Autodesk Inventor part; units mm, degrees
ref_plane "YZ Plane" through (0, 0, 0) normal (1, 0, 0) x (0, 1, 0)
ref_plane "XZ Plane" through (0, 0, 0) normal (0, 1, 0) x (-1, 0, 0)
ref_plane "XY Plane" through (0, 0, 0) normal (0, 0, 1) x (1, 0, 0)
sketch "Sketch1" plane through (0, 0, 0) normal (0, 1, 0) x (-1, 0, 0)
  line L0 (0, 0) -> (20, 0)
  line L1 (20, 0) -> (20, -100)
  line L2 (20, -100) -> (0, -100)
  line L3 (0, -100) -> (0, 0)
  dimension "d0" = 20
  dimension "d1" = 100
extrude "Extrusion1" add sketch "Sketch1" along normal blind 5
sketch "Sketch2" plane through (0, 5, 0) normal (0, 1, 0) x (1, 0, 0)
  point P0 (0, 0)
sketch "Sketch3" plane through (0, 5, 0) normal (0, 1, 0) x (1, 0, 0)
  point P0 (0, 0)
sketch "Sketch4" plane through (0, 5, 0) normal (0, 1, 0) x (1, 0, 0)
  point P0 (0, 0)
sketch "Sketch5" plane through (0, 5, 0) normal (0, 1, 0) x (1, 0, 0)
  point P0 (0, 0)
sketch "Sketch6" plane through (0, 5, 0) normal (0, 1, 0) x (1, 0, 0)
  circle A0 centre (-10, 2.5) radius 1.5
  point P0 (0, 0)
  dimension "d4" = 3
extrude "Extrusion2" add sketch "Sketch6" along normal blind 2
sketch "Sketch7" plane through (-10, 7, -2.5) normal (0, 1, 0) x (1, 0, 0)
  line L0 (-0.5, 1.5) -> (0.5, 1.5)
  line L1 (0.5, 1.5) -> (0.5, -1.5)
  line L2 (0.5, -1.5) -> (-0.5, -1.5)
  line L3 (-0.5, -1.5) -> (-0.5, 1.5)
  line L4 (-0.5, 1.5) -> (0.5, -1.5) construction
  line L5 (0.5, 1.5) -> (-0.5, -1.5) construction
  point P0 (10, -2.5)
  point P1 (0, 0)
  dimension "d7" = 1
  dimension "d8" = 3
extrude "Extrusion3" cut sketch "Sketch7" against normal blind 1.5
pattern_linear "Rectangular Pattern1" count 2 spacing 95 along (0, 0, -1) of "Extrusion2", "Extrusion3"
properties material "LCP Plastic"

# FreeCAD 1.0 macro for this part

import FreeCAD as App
import Part
import Sketcher
from FreeCAD import Vector
Q = App.Units.Quantity


def add_polygon(sketch, points):
    """Adds a closed chain of lines whose ends are joined by coincident constraints."""
    first, n = sketch.GeometryCount, len(points)
    for a, b in zip(points, points[1:] + points[:1]):
        sketch.addGeometry(Part.LineSegment(App.Vector(*a, 0), App.Vector(*b, 0)), False)
    for i in range(n):
        sketch.addConstraint(Sketcher.Constraint("Coincident", first + i, 2, first + (i + 1) % n, 1))

doc = App.newDocument("Part")
body = doc.addObject("PartDesign::Body", "Body")

# Sketch on XZ plane
sketch1 = body.newObject("Sketcher::SketchObject", "Sketch")
sketch1.AttachmentSupport = (doc.getObject("XZ_Plane"), [""])
sketch1.MapMode = "FlatFace"
add_polygon(sketch1, [(-20, 0), (0, 0), (0, -100), (-20, -100)])  # lines 0-3
sketch1.addConstraint(Sketcher.Constraint("Horizontal", 0))
sketch1.addConstraint(Sketcher.Constraint("Vertical", 1))
sketch1.addConstraint(Sketcher.Constraint("Horizontal", 2))
sketch1.addConstraint(Sketcher.Constraint("Vertical", 3))
sketch1.addConstraint(Sketcher.Constraint("Coincident", 0, 2, -1, 1))
sketch1.addConstraint(Sketcher.Constraint("DistanceX", 0, 1, 0, 2, Q("20 mm")))
sketch1.addConstraint(Sketcher.Constraint("DistanceY", 1, 2, 1, 1, Q("100 mm")))
pad1 = body.newObject("PartDesign::Pad", "Pad")
pad1.Profile = sketch1
pad1.Length = 5
pad1.Reversed = True

# Sketch on XZ plane
sketch2 = body.newObject("Sketcher::SketchObject", "Sketch001")
sketch2.AttachmentSupport = (doc.getObject("XZ_Plane"), [""])
sketch2.MapMode = "FlatFace"
sketch2.AttachmentOffset = App.Placement(Vector(0, 0, -5), App.Rotation())
sketch2.addGeometry(Part.Circle(Vector(-10, -2.5, 0), Vector(0, 0, 1), 1.5), False)
sketch2.addConstraint(Sketcher.Constraint("Diameter", 0, Q("3 mm")))
sketch2.addConstraint(Sketcher.Constraint("DistanceX", 0, 3, -1, 1, Q("10 mm")))
sketch2.addConstraint(Sketcher.Constraint("DistanceY", 0, 3, -1, 1, Q("2.5 mm")))
pad2 = body.newObject("PartDesign::Pad", "Pad001")
pad2.Profile = sketch2
pad2.Length = 2
pad2.Reversed = True

# Sketch on XZ plane
sketch3 = body.newObject("Sketcher::SketchObject", "Sketch002")
sketch3.AttachmentSupport = (doc.getObject("XZ_Plane"), [""])
sketch3.MapMode = "FlatFace"
sketch3.AttachmentOffset = App.Placement(Vector(0, 0, -7), App.Rotation())
add_polygon(sketch3, [(-9.5, -4), (-10.5, -4), (-10.5, -1), (-9.5, -1)])  # lines 0-3
sketch3.addConstraint(Sketcher.Constraint("Horizontal", 0))
sketch3.addConstraint(Sketcher.Constraint("Vertical", 1))
sketch3.addConstraint(Sketcher.Constraint("Horizontal", 2))
sketch3.addConstraint(Sketcher.Constraint("Vertical", 3))
sketch3.addConstraint(Sketcher.Constraint("DistanceX", 0, 2, 0, 1, Q("1 mm")))
sketch3.addConstraint(Sketcher.Constraint("DistanceY", 1, 1, 1, 2, Q("3 mm")))
sketch3.addConstraint(Sketcher.Constraint("DistanceY", 1, 2, -1, 1, Q("1 mm")))
sketch3.addConstraint(Sketcher.Constraint("DistanceX", 0, 2, -1, 1, Q("10.5 mm")))
pocket1 = body.newObject("PartDesign::Pocket", "Pocket")
pocket1.Profile = sketch3
pocket1.Length = 1.5
pocket1.Reversed = True
doc.recompute()

linearpattern = body.newObject("PartDesign::LinearPattern", "LinearPattern")
linearpattern.Originals = [pad2, pocket1]
linearpattern.Direction = (doc.getObject("Z_Axis"), [""])
linearpattern.Mode = "offset"
linearpattern.Offset = 95
linearpattern.Occurrences = 2
linearpattern.Reversed = True
body.Tip = linearpattern

doc.recompute()
